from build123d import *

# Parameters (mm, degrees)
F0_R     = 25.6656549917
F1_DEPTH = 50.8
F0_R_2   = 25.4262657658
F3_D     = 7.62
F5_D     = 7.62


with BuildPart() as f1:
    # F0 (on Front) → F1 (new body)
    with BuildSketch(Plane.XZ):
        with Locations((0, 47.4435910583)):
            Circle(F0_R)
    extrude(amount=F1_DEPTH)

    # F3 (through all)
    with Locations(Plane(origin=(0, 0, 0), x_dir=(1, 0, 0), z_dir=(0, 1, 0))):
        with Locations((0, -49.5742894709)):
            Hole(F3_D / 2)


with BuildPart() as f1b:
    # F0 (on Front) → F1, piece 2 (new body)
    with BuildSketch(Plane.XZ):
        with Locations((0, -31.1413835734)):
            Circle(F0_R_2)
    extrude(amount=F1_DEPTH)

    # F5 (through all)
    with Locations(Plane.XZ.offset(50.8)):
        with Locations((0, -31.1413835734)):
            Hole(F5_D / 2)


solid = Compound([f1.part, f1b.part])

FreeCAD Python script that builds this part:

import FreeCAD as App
import Part
import Sketcher
from FreeCAD import Vector
Q = App.Units.Quantity

doc = App.newDocument("Part")
body = doc.addObject("PartDesign::Body", "Body")

# Sketch on XZ plane
sketch1 = doc.addObject("Sketcher::SketchObject", "Sketch")
body.addObject(sketch1)
sketch1.AttachmentSupport = (doc.XZ_Plane, [""])
sketch1.MapMode = "FlatFace"
sketch1.addGeometry(Part.Circle(Vector(0, 47.443591, 0), Vector(0, 0, 1), 25.665655), False)
sketch1.addConstraint([
    Sketcher.Constraint("PointOnObject", 0, 3, -2),
    Sketcher.Constraint("Diameter", 0, Q("51.33131 mm")),
    Sketcher.Constraint("DistanceY", -1, 1, 0, 3, Q("47.443591 mm")),
])
pad1 = doc.addObject("PartDesign::Pad", "Pad")
body.addObject(pad1)
pad1.Profile = sketch1
pad1.Length = Q("2 in")

# Sketch on XZ plane
sketch2 = doc.addObject("Sketcher::SketchObject", "Sketch001")
body.addObject(sketch2)
sketch2.AttachmentSupport = (doc.XZ_Plane, [""])
sketch2.MapMode = "FlatFace"
sketch2.addGeometry(Part.Circle(Vector(0, 49.574289, 0), Vector(0, 0, 1), 3.81), False)
sketch2.addConstraint([
    Sketcher.Constraint("PointOnObject", 0, 3, -2),
    Sketcher.Constraint("Diameter", 0, Q("0.3 in")),
    Sketcher.Constraint("DistanceY", -1, 1, 0, 3, Q("49.574289 mm")),
])
doc.recompute()
hole = doc.addObject("PartDesign::Hole", "Hole")
body.addObject(hole)
hole.Profile = sketch2
hole.ThreadType = "None"
hole.Diameter = Q("0.3 in")
hole.DepthType = "ThroughAll"
hole.Reversed = True
body2 = doc.addObject("PartDesign::Body", "Body001")

# Sketch on XZ plane
sketch3 = doc.addObject("Sketcher::SketchObject", "Sketch002")
body2.addObject(sketch3)
sketch3.AttachmentSupport = (doc.getObject("XZ_Plane001"), [""])
sketch3.MapMode = "FlatFace"
sketch3.addGeometry(Part.Circle(Vector(0, -31.141384, 0), Vector(0, 0, 1), 25.426266), False)
sketch3.addConstraint([
    Sketcher.Constraint("PointOnObject", 0, 3, -2),
    Sketcher.Constraint("Diameter", 0, Q("50.852532 mm")),
    Sketcher.Constraint("DistanceY", 0, 3, -1, 1, Q("31.141384 mm")),
])
pad2 = doc.addObject("PartDesign::Pad", "Pad001")
body2.addObject(pad2)
pad2.Profile = sketch3
pad2.Length = Q("2 in")

# Sketch on XZ plane
sketch4 = doc.addObject("Sketcher::SketchObject", "Sketch003")
body2.addObject(sketch4)
sketch4.AttachmentSupport = (doc.getObject("XZ_Plane001"), [""])
sketch4.MapMode = "FlatFace"
sketch4.AttachmentOffset = App.Placement(Vector(0, 0, 2 * 25.4), App.Rotation())
sketch4.addGeometry(Part.Circle(Vector(0, -31.141384, 0), Vector(0, 0, 1), 3.81), False)
sketch4.addConstraint([
    Sketcher.Constraint("PointOnObject", 0, 3, -2),
    Sketcher.Constraint("Diameter", 0, Q("0.3 in")),
    Sketcher.Constraint("DistanceY", 0, 3, -1, 1, Q("31.141384 mm")),
])
doc.recompute()
hole2 = doc.addObject("PartDesign::Hole", "Hole001")
body2.addObject(hole2)
hole2.Profile = sketch4
hole2.ThreadType = "None"
hole2.Diameter = Q("0.3 in")
hole2.DepthType = "ThroughAll"

doc.recompute()
